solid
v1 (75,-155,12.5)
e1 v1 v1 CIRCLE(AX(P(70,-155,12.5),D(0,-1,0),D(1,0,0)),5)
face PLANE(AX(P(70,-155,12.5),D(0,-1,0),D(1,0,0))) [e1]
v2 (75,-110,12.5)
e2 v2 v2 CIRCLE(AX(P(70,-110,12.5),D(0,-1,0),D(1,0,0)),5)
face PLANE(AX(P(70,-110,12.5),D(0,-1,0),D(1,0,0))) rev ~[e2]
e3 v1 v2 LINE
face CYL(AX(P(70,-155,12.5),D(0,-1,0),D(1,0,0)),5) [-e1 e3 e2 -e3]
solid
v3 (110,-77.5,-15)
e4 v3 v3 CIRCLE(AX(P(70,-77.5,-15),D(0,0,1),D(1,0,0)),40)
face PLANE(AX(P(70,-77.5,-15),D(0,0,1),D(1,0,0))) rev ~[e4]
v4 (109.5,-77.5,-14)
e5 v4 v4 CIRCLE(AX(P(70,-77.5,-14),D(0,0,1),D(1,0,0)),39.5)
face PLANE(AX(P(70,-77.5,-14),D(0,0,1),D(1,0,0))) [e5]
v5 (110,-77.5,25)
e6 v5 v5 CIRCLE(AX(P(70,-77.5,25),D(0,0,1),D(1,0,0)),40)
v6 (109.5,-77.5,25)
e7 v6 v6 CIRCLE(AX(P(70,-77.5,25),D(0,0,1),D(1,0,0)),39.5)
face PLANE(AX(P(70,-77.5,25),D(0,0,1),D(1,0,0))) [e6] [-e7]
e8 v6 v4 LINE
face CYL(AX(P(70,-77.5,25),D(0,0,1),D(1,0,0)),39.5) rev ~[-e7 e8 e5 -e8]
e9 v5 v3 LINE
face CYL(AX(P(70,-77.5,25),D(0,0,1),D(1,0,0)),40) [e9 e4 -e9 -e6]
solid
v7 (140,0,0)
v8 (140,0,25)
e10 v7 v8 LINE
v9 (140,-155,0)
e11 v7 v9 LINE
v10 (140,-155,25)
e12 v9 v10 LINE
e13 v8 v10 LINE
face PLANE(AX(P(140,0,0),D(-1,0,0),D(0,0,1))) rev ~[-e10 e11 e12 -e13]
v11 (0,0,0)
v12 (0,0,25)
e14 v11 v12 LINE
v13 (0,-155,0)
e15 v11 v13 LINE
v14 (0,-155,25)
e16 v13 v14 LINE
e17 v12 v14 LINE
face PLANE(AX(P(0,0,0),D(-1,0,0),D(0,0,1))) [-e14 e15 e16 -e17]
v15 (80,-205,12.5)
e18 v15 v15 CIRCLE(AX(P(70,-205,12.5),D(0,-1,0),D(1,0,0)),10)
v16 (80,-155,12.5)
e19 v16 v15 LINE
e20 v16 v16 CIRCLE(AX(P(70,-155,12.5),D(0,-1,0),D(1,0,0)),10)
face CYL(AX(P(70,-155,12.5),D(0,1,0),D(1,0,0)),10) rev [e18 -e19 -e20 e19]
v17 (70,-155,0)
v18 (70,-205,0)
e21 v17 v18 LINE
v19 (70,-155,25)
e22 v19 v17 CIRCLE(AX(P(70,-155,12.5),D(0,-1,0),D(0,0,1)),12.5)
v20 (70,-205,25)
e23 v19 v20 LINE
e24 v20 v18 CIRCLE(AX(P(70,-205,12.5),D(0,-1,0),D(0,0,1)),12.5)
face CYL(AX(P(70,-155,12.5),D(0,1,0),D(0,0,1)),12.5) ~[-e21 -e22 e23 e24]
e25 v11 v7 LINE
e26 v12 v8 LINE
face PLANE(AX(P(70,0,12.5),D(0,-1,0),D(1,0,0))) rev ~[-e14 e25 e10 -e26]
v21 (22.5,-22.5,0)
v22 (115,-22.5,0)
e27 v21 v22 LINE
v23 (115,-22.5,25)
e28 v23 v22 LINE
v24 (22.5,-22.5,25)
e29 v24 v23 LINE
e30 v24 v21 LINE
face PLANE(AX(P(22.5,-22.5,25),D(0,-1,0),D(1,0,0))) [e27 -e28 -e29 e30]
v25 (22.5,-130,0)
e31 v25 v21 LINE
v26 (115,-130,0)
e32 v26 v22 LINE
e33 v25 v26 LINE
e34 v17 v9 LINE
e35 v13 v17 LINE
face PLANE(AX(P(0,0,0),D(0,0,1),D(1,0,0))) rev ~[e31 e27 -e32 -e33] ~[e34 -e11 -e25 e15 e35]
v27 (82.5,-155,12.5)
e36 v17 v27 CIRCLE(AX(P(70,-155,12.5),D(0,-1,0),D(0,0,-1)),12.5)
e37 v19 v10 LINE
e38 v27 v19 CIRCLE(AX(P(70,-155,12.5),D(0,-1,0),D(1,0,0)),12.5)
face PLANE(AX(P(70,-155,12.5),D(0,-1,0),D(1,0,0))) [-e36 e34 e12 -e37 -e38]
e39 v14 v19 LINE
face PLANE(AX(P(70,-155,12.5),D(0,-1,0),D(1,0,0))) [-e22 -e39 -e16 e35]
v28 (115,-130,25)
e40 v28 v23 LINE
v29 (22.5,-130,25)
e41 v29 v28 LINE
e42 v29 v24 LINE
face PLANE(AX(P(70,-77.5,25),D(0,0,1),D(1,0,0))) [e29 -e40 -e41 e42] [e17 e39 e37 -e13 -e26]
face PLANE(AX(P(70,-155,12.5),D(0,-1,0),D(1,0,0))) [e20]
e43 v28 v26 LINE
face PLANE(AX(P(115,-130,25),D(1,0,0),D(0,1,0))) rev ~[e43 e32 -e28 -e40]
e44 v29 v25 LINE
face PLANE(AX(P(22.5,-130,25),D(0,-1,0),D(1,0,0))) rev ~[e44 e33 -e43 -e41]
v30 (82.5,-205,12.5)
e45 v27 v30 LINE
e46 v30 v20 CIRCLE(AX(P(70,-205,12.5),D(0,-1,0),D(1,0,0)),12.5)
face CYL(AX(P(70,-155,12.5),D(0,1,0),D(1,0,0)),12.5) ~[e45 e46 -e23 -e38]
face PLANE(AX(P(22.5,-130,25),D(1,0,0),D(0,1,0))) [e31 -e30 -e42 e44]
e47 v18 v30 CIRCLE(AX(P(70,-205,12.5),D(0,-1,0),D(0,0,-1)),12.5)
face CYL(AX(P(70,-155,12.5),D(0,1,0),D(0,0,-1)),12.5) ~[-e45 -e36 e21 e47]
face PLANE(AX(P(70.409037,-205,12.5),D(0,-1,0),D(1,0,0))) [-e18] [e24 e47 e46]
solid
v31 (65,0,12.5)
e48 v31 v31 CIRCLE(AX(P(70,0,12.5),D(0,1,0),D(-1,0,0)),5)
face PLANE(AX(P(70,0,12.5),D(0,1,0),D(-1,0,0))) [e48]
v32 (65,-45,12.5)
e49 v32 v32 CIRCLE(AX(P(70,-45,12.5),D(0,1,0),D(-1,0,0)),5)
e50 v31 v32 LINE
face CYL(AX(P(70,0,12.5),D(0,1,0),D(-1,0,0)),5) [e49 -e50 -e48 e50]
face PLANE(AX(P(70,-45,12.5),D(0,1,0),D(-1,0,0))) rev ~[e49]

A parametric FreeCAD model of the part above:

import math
import FreeCAD as App
import Part
import Sketcher
from FreeCAD import Vector

doc = App.newDocument("Part")
params = doc.addObject("Spreadsheet::Sheet", "Params")
for row, (alias, value) in enumerate([
    ("sketch1_width", "140 mm"),
    ("sketch1_height", "25 mm"),
    ("pad1_length", "155 mm"),
    ("sketch2_diameter", "80 mm"),
    ("pad2_length", "40 mm"),
    ("sketch3_diameter", "79 mm"),
    ("pocket1_length", "39 mm"),
    ("sketch4_diameter", "80 mm"),
    ("sketch4_width", "92.5 mm"),
    ("sketch4_height", "107.5 mm"),
    ("pocket2_length", "95 mm"),
    ("sketch5_diameter", "20 mm"),
    ("sketch5_radius", "12.5 mm"),
    ("pad3_length", "50 mm"),
    ("sketch6_diameter", "10 mm"),
    ("pad4_length", "45 mm"),
    ("sketch7_diameter", "10 mm"),
    ("pad5_length", "45 mm"),
], start=1):
    params.set(f"A{row}", alias)
    params.set(f"B{row}", "=" + value)
    params.setAlias(f"B{row}", alias)

body = doc.addObject("PartDesign::Body", "Body")
body.AllowCompound = True

# Sketch on XZ plane
sketch1 = body.newObject("Sketcher::SketchObject", "Sketch")
sketch1.AttachmentSupport = (doc.getObject("XZ_Plane"), [""])
sketch1.MapMode = "FlatFace"
sketch1.addGeometry(Part.LineSegment(Vector(0, 25, 0), Vector(0, 0, 0)), False)
sketch1.addGeometry(Part.LineSegment(Vector(0, 0, 0), Vector(140, 0, 0)), False)
sketch1.addGeometry(Part.LineSegment(Vector(140, 0, 0), Vector(140, 25, 0)), False)
sketch1.addGeometry(Part.LineSegment(Vector(140, 25, 0), Vector(0, 25, 0)), False)
sketch1.addConstraint(Sketcher.Constraint("Coincident", 0, 2, 1, 1))
sketch1.addConstraint(Sketcher.Constraint("Coincident", 1, 2, 2, 1))
sketch1.addConstraint(Sketcher.Constraint("Coincident", 2, 2, 3, 1))
sketch1.addConstraint(Sketcher.Constraint("Coincident", 3, 2, 0, 1))
sketch1.addConstraint(Sketcher.Constraint("Vertical", 0))
sketch1.addConstraint(Sketcher.Constraint("Horizontal", 1))
sketch1.addConstraint(Sketcher.Constraint("Vertical", 2))
sketch1.addConstraint(Sketcher.Constraint("Horizontal", 3))
sketch1.addConstraint(Sketcher.Constraint("Coincident", 0, 2, -1, 1))
sketch1.addConstraint(Sketcher.Constraint("DistanceX", 1, 1, 1, 2, 140.0))
sketch1.addConstraint(Sketcher.Constraint("DistanceY", 0, 2, 0, 1, 25.0))
sketch1.setExpression("Constraints[9]", "Params.sketch1_width")
sketch1.setExpression("Constraints[10]", "Params.sketch1_height")
pad1 = body.newObject("PartDesign::Pad", "Pad")
pad1.Profile = sketch1
pad1.setExpression("Length", "Params.pad1_length")

# Sketch on XY plane
sketch2 = body.newObject("Sketcher::SketchObject", "Sketch001")
sketch2.AttachmentSupport = (doc.getObject("XY_Plane"), [""])
sketch2.MapMode = "FlatFace"
sketch2.AttachmentOffset = App.Placement(Vector(0, 0, 25), App.Rotation())
sketch2.addGeometry(Part.Circle(Vector(70, -78, 0), Vector(0, 0, 1), 40), False)
sketch2.addConstraint(Sketcher.Constraint("Diameter", 0, 80.0))
sketch2.addConstraint(Sketcher.Constraint("DistanceX", -1, 1, 0, 3, 70.0))
sketch2.addConstraint(Sketcher.Constraint("DistanceY", 0, 3, -1, 1, 77.5))
sketch2.setExpression("Constraints[0]", "Params.sketch2_diameter")
pad2 = body.newObject("PartDesign::Pad", "Pad001")
pad2.Profile = sketch2
pad2.setExpression("Length", "Params.pad2_length")
pad2.Reversed = True

# Sketch on XY plane
sketch3 = body.newObject("Sketcher::SketchObject", "Sketch002")
sketch3.AttachmentSupport = (doc.getObject("XY_Plane"), [""])
sketch3.MapMode = "FlatFace"
sketch3.AttachmentOffset = App.Placement(Vector(0, 0, 25), App.Rotation())
sketch3.addGeometry(Part.Circle(Vector(70, -78, 0), Vector(0, 0, 1), 40), False)
sketch3.addConstraint(Sketcher.Constraint("Diameter", 0, 79.0))
sketch3.addConstraint(Sketcher.Constraint("DistanceX", -1, 1, 0, 3, 70.0))
sketch3.addConstraint(Sketcher.Constraint("DistanceY", 0, 3, -1, 1, 77.5))
sketch3.setExpression("Constraints[0]", "Params.sketch3_diameter")
pocket1 = body.newObject("PartDesign::Pocket", "Pocket")
pocket1.Profile = sketch3
pocket1.setExpression("Length", "Params.pocket1_length")

# Sketch on XY plane
sketch4 = body.newObject("Sketcher::SketchObject", "Sketch003")
sketch4.AttachmentSupport = (doc.getObject("XY_Plane"), [""])
sketch4.MapMode = "FlatFace"
sketch4.AttachmentOffset = App.Placement(Vector(0, 0, 25), App.Rotation())
sketch4.addGeometry(Part.LineSegment(Vector(22, -22, 0), Vector(22, -130, 0)), False)
sketch4.addGeometry(Part.LineSegment(Vector(22, -130, 0), Vector(115, -130, 0)), False)
sketch4.addGeometry(Part.LineSegment(Vector(115, -130, 0), Vector(115, -22, 0)), False)
sketch4.addGeometry(Part.LineSegment(Vector(115, -22, 0), Vector(22, -22, 0)), False)
sketch4.addGeometry(Part.Circle(Vector(70, -78, 0), Vector(0, 0, 1), 40), False)
sketch4.addConstraint(Sketcher.Constraint("Coincident", 0, 2, 1, 1))
sketch4.addConstraint(Sketcher.Constraint("Coincident", 1, 2, 2, 1))
sketch4.addConstraint(Sketcher.Constraint("Coincident", 2, 2, 3, 1))
sketch4.addConstraint(Sketcher.Constraint("Coincident", 3, 2, 0, 1))
sketch4.addConstraint(Sketcher.Constraint("Vertical", 0))
sketch4.addConstraint(Sketcher.Constraint("Horizontal", 1))
sketch4.addConstraint(Sketcher.Constraint("Vertical", 2))
sketch4.addConstraint(Sketcher.Constraint("Horizontal", 3))
sketch4.addConstraint(Sketcher.Constraint("Diameter", 4, 80.0))
sketch4.addConstraint(Sketcher.Constraint("DistanceX", 1, 1, 1, 2, 92.5))
sketch4.addConstraint(Sketcher.Constraint("DistanceY", 0, 2, 0, 1, 107.5))
sketch4.addConstraint(Sketcher.Constraint("DistanceX", -1, 1, 4, 3, 70.0))
sketch4.addConstraint(Sketcher.Constraint("DistanceY", 0, 2, -1, 1, 130.0))
sketch4.addConstraint(Sketcher.Constraint("DistanceX", -1, 1, 1, 2, 115.0))
sketch4.addConstraint(Sketcher.Constraint("DistanceY", 4, 3, 2, 2, 55.0))
sketch4.setExpression("Constraints[8]", "Params.sketch4_diameter")
sketch4.setExpression("Constraints[9]", "Params.sketch4_width")
sketch4.setExpression("Constraints[10]", "Params.sketch4_height")
pocket2 = body.newObject("PartDesign::Pocket", "Pocket001")
pocket2.Profile = sketch4
pocket2.setExpression("Length", "Params.pocket2_length")

# Sketch on XZ plane
sketch5 = body.newObject("Sketcher::SketchObject", "Sketch004")
sketch5.AttachmentSupport = (doc.getObject("XZ_Plane"), [""])
sketch5.MapMode = "FlatFace"
sketch5.AttachmentOffset = App.Placement(Vector(0, 0, 155), App.Rotation())
sketch5.addGeometry(Part.ArcOfCircle(Part.Circle(Vector(70, 12, 0), Vector(0, 0, 1), 12), math.radians(-90), math.radians(0)), False)
sketch5.addGeometry(Part.ArcOfCircle(Part.Circle(Vector(70, 12, 0), Vector(0, 0, 1), 12), math.radians(0), math.radians(90)), False)
sketch5.addGeometry(Part.ArcOfCircle(Part.Circle(Vector(70, 12, 0), Vector(0, 0, 1), 12), math.radians(90), math.radians(270)), False)
sketch5.addGeometry(Part.Circle(Vector(70, 12, 0), Vector(0, 0, 1), 10), False)
sketch5.addConstraint(Sketcher.Constraint("Tangent", 0, 2, 1, 1))
sketch5.addConstraint(Sketcher.Constraint("Tangent", 1, 2, 2, 1))
sketch5.addConstraint(Sketcher.Constraint("Tangent", 2, 2, 0, 1))
sketch5.addConstraint(Sketcher.Constraint("Coincident", 3, 3, 0, 3))
sketch5.addConstraint(Sketcher.Constraint("PointOnObject", 2, 2, -1))
sketch5.addConstraint(Sketcher.Constraint("Horizontal", 3, 3, 0, 2))
sketch5.addConstraint(Sketcher.Constraint("Vertical", 3, 3, 1, 2))
sketch5.addConstraint(Sketcher.Constraint("Vertical", 1, 2, 2, 2))
sketch5.addConstraint(Sketcher.Constraint("Diameter", 3, 20.0))
sketch5.addConstraint(Sketcher.Constraint("Radius", 0, 12.5))
sketch5.addConstraint(Sketcher.Constraint("DistanceX", -1, 1, 0, 3, 70.0))
sketch5.setExpression("Constraints[8]", "Params.sketch5_diameter")
sketch5.setExpression("Constraints[9]", "Params.sketch5_radius")
pad3 = body.newObject("PartDesign::Pad", "Pad002")
pad3.Profile = sketch5
pad3.setExpression("Length", "Params.pad3_length")
body2 = doc.addObject("PartDesign::Body", "Body001")

# Sketch on XZ plane
sketch6 = body2.newObject("Sketcher::SketchObject", "Sketch005")
sketch6.AttachmentSupport = (doc.getObject("XZ_Plane001"), [""])
sketch6.MapMode = "FlatFace"
sketch6.AttachmentOffset = App.Placement(Vector(0, 0, 155), App.Rotation())
sketch6.addGeometry(Part.Circle(Vector(70, 12, 0), Vector(0, 0, 1), 5), False)
sketch6.addConstraint(Sketcher.Constraint("Diameter", 0, 10.0))
sketch6.addConstraint(Sketcher.Constraint("DistanceX", -1, 1, 0, 3, 70.0))
sketch6.addConstraint(Sketcher.Constraint("DistanceY", -1, 1, 0, 3, 12.5))
sketch6.setExpression("Constraints[0]", "Params.sketch6_diameter")
pad4 = body2.newObject("PartDesign::Pad", "Pad003")
pad4.Profile = sketch6
pad4.setExpression("Length", "Params.pad4_length")
pad4.Reversed = True
body3 = doc.addObject("PartDesign::Body", "Body002")

# Sketch on XZ plane
sketch7 = body3.newObject("Sketcher::SketchObject", "Sketch006")
sketch7.AttachmentSupport = (doc.getObject("XZ_Plane002"), [""])
sketch7.MapMode = "FlatFace"
sketch7.addGeometry(Part.Circle(Vector(70, 12, 0), Vector(0, 0, 1), 5), False)
sketch7.addConstraint(Sketcher.Constraint("Diameter", 0, 10.0))
sketch7.addConstraint(Sketcher.Constraint("DistanceX", -1, 1, 0, 3, 70.0))
sketch7.addConstraint(Sketcher.Constraint("DistanceY", -1, 1, 0, 3, 12.5))
sketch7.setExpression("Constraints[0]", "Params.sketch7_diameter")
pad5 = body3.newObject("PartDesign::Pad", "Pad004")
pad5.Profile = sketch7
pad5.setExpression("Length", "Params.pad5_length")

doc.recompute()
